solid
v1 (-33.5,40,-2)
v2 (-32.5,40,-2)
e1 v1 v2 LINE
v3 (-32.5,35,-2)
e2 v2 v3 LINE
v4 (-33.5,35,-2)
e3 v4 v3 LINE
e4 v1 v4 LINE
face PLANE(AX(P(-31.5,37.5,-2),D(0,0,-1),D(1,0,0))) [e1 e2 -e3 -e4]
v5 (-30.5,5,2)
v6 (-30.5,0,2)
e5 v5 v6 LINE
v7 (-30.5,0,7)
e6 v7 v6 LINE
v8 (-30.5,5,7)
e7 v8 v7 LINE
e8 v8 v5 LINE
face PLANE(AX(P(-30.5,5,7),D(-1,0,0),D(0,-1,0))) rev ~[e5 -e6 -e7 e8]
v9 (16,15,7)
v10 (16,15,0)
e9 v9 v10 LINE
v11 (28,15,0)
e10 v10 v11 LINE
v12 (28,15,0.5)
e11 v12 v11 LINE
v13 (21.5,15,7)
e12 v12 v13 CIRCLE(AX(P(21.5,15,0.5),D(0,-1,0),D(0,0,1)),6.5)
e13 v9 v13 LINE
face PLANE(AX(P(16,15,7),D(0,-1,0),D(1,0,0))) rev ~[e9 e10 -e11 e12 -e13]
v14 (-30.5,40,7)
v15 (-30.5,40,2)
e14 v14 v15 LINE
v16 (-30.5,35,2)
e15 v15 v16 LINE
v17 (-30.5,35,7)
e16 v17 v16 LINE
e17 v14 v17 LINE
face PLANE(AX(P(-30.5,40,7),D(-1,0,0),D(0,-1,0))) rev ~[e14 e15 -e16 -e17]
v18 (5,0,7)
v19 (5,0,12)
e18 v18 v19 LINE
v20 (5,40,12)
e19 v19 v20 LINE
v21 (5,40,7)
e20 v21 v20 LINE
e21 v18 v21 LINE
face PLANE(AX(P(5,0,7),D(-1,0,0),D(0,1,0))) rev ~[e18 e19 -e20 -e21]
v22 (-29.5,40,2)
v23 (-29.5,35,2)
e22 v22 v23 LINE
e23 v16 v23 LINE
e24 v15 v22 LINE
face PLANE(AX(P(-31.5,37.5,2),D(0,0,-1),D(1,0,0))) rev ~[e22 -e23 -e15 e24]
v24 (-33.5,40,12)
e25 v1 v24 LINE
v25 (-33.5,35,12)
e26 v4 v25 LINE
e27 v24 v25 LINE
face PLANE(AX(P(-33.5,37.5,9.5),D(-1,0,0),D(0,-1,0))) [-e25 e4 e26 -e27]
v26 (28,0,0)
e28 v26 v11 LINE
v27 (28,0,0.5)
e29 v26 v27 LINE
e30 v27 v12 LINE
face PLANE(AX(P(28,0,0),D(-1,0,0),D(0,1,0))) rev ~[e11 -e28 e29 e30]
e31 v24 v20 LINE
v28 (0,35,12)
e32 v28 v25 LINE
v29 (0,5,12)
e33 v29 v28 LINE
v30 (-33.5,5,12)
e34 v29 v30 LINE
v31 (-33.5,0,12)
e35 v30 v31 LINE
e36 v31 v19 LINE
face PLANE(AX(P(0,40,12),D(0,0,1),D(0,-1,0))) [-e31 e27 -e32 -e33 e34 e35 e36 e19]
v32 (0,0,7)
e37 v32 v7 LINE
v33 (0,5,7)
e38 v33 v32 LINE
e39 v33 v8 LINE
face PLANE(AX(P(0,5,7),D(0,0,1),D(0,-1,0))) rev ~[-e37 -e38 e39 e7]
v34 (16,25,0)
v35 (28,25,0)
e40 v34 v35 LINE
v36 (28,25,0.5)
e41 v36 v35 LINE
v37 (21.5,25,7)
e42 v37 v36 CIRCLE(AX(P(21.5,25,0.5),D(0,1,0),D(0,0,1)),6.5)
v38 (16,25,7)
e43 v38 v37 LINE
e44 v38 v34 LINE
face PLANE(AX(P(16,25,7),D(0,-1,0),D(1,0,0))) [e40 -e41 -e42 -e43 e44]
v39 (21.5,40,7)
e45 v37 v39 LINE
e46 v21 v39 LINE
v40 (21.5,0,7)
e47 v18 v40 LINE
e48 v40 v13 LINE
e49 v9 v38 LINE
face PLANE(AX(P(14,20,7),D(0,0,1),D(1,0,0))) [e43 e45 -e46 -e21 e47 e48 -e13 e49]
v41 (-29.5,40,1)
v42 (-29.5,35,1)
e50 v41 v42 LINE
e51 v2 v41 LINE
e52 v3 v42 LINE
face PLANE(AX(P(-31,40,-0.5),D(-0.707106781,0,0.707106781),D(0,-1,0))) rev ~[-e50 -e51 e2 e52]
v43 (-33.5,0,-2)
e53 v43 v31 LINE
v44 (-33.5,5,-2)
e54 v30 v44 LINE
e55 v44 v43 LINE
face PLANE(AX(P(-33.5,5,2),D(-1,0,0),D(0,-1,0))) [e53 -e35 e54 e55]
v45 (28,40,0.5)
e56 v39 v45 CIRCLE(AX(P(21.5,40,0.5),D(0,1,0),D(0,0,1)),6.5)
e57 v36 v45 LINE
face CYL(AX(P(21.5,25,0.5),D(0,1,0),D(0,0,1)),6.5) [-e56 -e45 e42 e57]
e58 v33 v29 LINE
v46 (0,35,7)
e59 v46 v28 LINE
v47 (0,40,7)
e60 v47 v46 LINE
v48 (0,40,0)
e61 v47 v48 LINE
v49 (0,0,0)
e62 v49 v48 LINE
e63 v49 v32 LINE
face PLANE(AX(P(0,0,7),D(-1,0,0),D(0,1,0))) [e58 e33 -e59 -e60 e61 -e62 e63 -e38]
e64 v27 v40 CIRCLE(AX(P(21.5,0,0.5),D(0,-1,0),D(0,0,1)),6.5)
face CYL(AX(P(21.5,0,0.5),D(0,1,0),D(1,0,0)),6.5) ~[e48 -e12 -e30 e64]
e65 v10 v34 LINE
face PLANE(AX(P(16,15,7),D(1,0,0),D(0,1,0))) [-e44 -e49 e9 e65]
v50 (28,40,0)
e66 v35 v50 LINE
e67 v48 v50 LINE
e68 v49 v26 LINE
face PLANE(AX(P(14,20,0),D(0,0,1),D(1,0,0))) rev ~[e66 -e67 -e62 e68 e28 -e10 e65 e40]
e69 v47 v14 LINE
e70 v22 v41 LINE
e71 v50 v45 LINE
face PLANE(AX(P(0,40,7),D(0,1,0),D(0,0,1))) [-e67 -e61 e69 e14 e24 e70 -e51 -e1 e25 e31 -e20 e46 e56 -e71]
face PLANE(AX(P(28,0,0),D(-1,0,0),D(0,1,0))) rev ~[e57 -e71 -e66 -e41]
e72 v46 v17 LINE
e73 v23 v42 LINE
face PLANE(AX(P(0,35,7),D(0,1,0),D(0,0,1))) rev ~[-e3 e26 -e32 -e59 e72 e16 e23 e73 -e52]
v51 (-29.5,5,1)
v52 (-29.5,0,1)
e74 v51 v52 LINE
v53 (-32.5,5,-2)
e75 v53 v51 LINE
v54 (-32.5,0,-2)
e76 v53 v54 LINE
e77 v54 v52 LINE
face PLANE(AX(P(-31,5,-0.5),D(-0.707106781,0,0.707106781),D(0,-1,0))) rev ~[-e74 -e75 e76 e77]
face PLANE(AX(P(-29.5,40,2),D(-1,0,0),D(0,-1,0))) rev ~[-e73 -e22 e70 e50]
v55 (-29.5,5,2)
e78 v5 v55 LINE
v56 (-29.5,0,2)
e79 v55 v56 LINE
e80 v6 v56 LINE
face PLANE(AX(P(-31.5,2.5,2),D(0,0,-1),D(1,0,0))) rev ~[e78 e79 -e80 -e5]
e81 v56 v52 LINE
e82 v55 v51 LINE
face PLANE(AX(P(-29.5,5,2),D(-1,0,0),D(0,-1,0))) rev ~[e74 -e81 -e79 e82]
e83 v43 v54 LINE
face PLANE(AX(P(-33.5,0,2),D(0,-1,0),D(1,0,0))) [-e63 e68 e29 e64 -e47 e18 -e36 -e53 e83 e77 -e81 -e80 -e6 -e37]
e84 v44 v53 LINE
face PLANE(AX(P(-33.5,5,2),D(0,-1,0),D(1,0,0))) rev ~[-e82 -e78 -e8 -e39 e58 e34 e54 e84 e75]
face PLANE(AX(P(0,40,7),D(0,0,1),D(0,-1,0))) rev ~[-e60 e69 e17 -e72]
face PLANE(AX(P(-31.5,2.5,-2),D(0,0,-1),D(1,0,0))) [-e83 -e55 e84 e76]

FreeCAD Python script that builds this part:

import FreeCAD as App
import Part
import Sketcher
from FreeCAD import Vector
Q = App.Units.Quantity


def edges_at(feature, points):
    """Names of the edges that pass closest to the given points."""
    edges = feature.Shape.Edges
    near = lambda p: min(range(len(edges)), key=lambda i: edges[i].distToShape(Part.Vertex(*p))[0])
    return sorted({f"Edge{near(p) + 1}" for p in points})


def add_polygon(sketch, points):
    """Adds a closed chain of lines whose ends are joined by coincident constraints."""
    first, n = sketch.GeometryCount, len(points)
    for a, b in zip(points, points[1:] + points[:1]):
        sketch.addGeometry(Part.LineSegment(App.Vector(*a, 0), App.Vector(*b, 0)), False)
    for i in range(n):
        sketch.addConstraint(Sketcher.Constraint("Coincident", first + i, 2, first + (i + 1) % n, 1))

doc = App.newDocument("Part")
body = doc.addObject("PartDesign::Body", "Body")

# Sketch on XY plane
sketch1 = doc.addObject("Sketcher::SketchObject", "Sketch")
body.addObject(sketch1)
sketch1.AttachmentSupport = (doc.XY_Plane, [""])
sketch1.MapMode = "FlatFace"
add_polygon(sketch1, [(0, 40), (0, 0), (28, 0), (28, 40)])  # lines 0-3
sketch1.addConstraint(Sketcher.Constraint("Vertical", 0))
sketch1.addConstraint(Sketcher.Constraint("Horizontal", 1))
sketch1.addConstraint(Sketcher.Constraint("Vertical", 2))
sketch1.addConstraint(Sketcher.Constraint("Horizontal", 3))
sketch1.addConstraint(Sketcher.Constraint("Coincident", 0, 2, -1, 1))
sketch1.addConstraint(Sketcher.Constraint("DistanceX", 1, 1, 1, 2, Q("28 mm")))
sketch1.addConstraint(Sketcher.Constraint("DistanceY", 0, 2, 0, 1, Q("40 mm")))
pad1 = doc.addObject("PartDesign::Pad", "Pad")
body.addObject(pad1)
pad1.Profile = sketch1
pad1.Length = 7

# Sketch on XY plane
sketch2 = doc.addObject("Sketcher::SketchObject", "Sketch001")
body.addObject(sketch2)
sketch2.AttachmentSupport = (doc.XY_Plane, [""])
sketch2.MapMode = "FlatFace"
sketch2.AttachmentOffset = App.Placement(Vector(0, 0, 7), App.Rotation())
add_polygon(sketch2, [(0, 40), (0, 0), (5, 0), (5, 40)])  # lines 0-3
sketch2.addConstraint(Sketcher.Constraint("Vertical", 0))
sketch2.addConstraint(Sketcher.Constraint("Horizontal", 1))
sketch2.addConstraint(Sketcher.Constraint("Vertical", 2))
sketch2.addConstraint(Sketcher.Constraint("Horizontal", 3))
sketch2.addConstraint(Sketcher.Constraint("Coincident", 0, 2, -1, 1))
sketch2.addConstraint(Sketcher.Constraint("DistanceX", 1, 1, 1, 2, Q("5 mm")))
sketch2.addConstraint(Sketcher.Constraint("DistanceY", 0, 2, 0, 1, Q("40 mm")))
pad2 = doc.addObject("PartDesign::Pad", "Pad001")
body.addObject(pad2)
pad2.Profile = sketch2
pad2.Length = 5

# Sketch on YZ plane
sketch3 = doc.addObject("Sketcher::SketchObject", "Sketch002")
body.addObject(sketch3)
sketch3.AttachmentSupport = (doc.YZ_Plane, [""])
sketch3.MapMode = "FlatFace"
add_polygon(sketch3, [(40, 12), (40, 7), (35, 7), (35, 12)])  # lines 0-3
add_polygon(sketch3, [(5, 12), (5, 7), (0, 7), (0, 12)])  # lines 4-7
sketch3.addConstraint(Sketcher.Constraint("Vertical", 0))
sketch3.addConstraint(Sketcher.Constraint("Horizontal", 1))
sketch3.addConstraint(Sketcher.Constraint("Vertical", 2))
sketch3.addConstraint(Sketcher.Constraint("Horizontal", 3))
sketch3.addConstraint(Sketcher.Constraint("Vertical", 4))
sketch3.addConstraint(Sketcher.Constraint("Horizontal", 5))
sketch3.addConstraint(Sketcher.Constraint("Vertical", 6))
sketch3.addConstraint(Sketcher.Constraint("Horizontal", 7))
sketch3.addConstraint(Sketcher.Constraint("PointOnObject", 5, 2, -2))
sketch3.addConstraint(Sketcher.Constraint("Horizontal", 1, 2, 4, 2))
sketch3.addConstraint(Sketcher.Constraint("Horizontal", 3, 2, 6, 2))
sketch3.addConstraint(Sketcher.Constraint("Equal", 3, 5))
sketch3.addConstraint(Sketcher.Constraint("Equal", 7, 0))
sketch3.addConstraint(Sketcher.Constraint("DistanceX", 1, 2, 1, 1, Q("5 mm")))
sketch3.addConstraint(Sketcher.Constraint("DistanceX", -1, 1, 0, 2, Q("40 mm")))
sketch3.addConstraint(Sketcher.Constraint("DistanceY", -1, 1, 0, 2, Q("7 mm")))
pad3 = doc.addObject("PartDesign::Pad", "Pad002")
body.addObject(pad3)
pad3.Profile = sketch3
pad3.Length = 33.5
pad3.Reversed = True

# Sketch on XY plane
sketch4 = doc.addObject("Sketcher::SketchObject", "Sketch003")
body.addObject(sketch4)
sketch4.AttachmentSupport = (doc.XY_Plane, [""])
sketch4.MapMode = "FlatFace"
sketch4.AttachmentOffset = App.Placement(Vector(0, 0, 7), App.Rotation())
add_polygon(sketch4, [(-33.5, 0), (-33.5, 5), (-30.5, 5), (-30.5, 0)])  # lines 0-3
add_polygon(sketch4, [(-33.5, 35), (-33.5, 40), (-30.5, 40), (-30.5, 35)])  # lines 4-7
sketch4.addConstraint(Sketcher.Constraint("Vertical", 0))
sketch4.addConstraint(Sketcher.Constraint("Horizontal", 1))
sketch4.addConstraint(Sketcher.Constraint("Vertical", 2))
sketch4.addConstraint(Sketcher.Constraint("Horizontal", 3))
sketch4.addConstraint(Sketcher.Constraint("Vertical", 4))
sketch4.addConstraint(Sketcher.Constraint("Horizontal", 5))
sketch4.addConstraint(Sketcher.Constraint("Vertical", 6))
sketch4.addConstraint(Sketcher.Constraint("Horizontal", 7))
sketch4.addConstraint(Sketcher.Constraint("PointOnObject", 2, 2, -1))
sketch4.addConstraint(Sketcher.Constraint("Vertical", 3, 2, 4, 2))
sketch4.addConstraint(Sketcher.Constraint("Vertical", 2, 2, 5, 2))
sketch4.addConstraint(Sketcher.Constraint("Equal", 2, 4))
sketch4.addConstraint(Sketcher.Constraint("DistanceX", 1, 1, 1, 2, Q("3 mm")))
sketch4.addConstraint(Sketcher.Constraint("DistanceY", 0, 1, 0, 2, Q("5 mm")))
sketch4.addConstraint(Sketcher.Constraint("DistanceY", -1, 1, 4, 2, Q("40 mm")))
sketch4.addConstraint(Sketcher.Constraint("DistanceX", 0, 2, -1, 1, Q("33.5 mm")))
pad4 = doc.addObject("PartDesign::Pad", "Pad003")
body.addObject(pad4)
pad4.Profile = sketch4
pad4.Length = 5
pad4.Reversed = True

# Sketch on XY plane
sketch5 = doc.addObject("Sketcher::SketchObject", "Sketch004")
body.addObject(sketch5)
sketch5.AttachmentSupport = (doc.XY_Plane, [""])
sketch5.MapMode = "FlatFace"
sketch5.AttachmentOffset = App.Placement(Vector(0, 0, 2), App.Rotation())
add_polygon(sketch5, [(-33.5, 0), (-33.5, 5), (-29.5, 5), (-29.5, 0)])  # lines 0-3
add_polygon(sketch5, [(-33.5, 35), (-33.5, 40), (-29.5, 40), (-29.5, 35)])  # lines 4-7
sketch5.addConstraint(Sketcher.Constraint("Vertical", 0))
sketch5.addConstraint(Sketcher.Constraint("Horizontal", 1))
sketch5.addConstraint(Sketcher.Constraint("Vertical", 2))
sketch5.addConstraint(Sketcher.Constraint("Horizontal", 3))
sketch5.addConstraint(Sketcher.Constraint("Vertical", 4))
sketch5.addConstraint(Sketcher.Constraint("Horizontal", 5))
sketch5.addConstraint(Sketcher.Constraint("Vertical", 6))
sketch5.addConstraint(Sketcher.Constraint("Horizontal", 7))
sketch5.addConstraint(Sketcher.Constraint("PointOnObject", 2, 2, -1))
sketch5.addConstraint(Sketcher.Constraint("Vertical", 3, 2, 4, 2))
sketch5.addConstraint(Sketcher.Constraint("Vertical", 2, 2, 5, 2))
sketch5.addConstraint(Sketcher.Constraint("Equal", 2, 4))
sketch5.addConstraint(Sketcher.Constraint("DistanceX", 1, 1, 1, 2, Q("4 mm")))
sketch5.addConstraint(Sketcher.Constraint("DistanceY", 0, 1, 0, 2, Q("5 mm")))
sketch5.addConstraint(Sketcher.Constraint("DistanceY", -1, 1, 4, 2, Q("40 mm")))
sketch5.addConstraint(Sketcher.Constraint("DistanceX", 0, 2, -1, 1, Q("33.5 mm")))
pad5 = doc.addObject("PartDesign::Pad", "Pad004")
body.addObject(pad5)
pad5.Profile = sketch5
pad5.Length = 4
pad5.Reversed = True

# Sketch on XY plane
sketch6 = doc.addObject("Sketcher::SketchObject", "Sketch005")
body.addObject(sketch6)
sketch6.AttachmentSupport = (doc.XY_Plane, [""])
sketch6.MapMode = "FlatFace"
sketch6.AttachmentOffset = App.Placement(Vector(0, 0, 7), App.Rotation())
add_polygon(sketch6, [(16, 25), (16, 15), (28, 15), (28, 25)])  # lines 0-3
sketch6.addConstraint(Sketcher.Constraint("Vertical", 0))
sketch6.addConstraint(Sketcher.Constraint("Horizontal", 1))
sketch6.addConstraint(Sketcher.Constraint("Vertical", 2))
sketch6.addConstraint(Sketcher.Constraint("Horizontal", 3))
sketch6.addConstraint(Sketcher.Constraint("DistanceX", 1, 1, 1, 2, Q("12 mm")))
sketch6.addConstraint(Sketcher.Constraint("DistanceY", 0, 2, 0, 1, Q("10 mm")))
sketch6.addConstraint(Sketcher.Constraint("DistanceX", -1, 1, 0, 2, Q("16 mm")))
sketch6.addConstraint(Sketcher.Constraint("DistanceY", -1, 1, 0, 2, Q("15 mm")))
pocket1 = doc.addObject("PartDesign::Pocket", "Pocket")
body.addObject(pocket1)
pocket1.Profile = sketch6
pocket1.Type = "ThroughAll"
doc.recompute()

fillet = doc.addObject("PartDesign::Fillet", "Fillet")
body.addObject(fillet)
fillet.Base = (pocket1, edges_at(pocket1, [(28, 7.5, 7), (28, 32.5, 7)]))
fillet.Radius = 6.5
doc.recompute()

chamfer = doc.addObject("PartDesign::Chamfer", "Chamfer")
body.addObject(chamfer)
chamfer.Base = (fillet, edges_at(fillet, [(-29.5, 37.5, -2), (-29.5, 2.5, -2)]))
chamfer.Size = 3

doc.recompute()
